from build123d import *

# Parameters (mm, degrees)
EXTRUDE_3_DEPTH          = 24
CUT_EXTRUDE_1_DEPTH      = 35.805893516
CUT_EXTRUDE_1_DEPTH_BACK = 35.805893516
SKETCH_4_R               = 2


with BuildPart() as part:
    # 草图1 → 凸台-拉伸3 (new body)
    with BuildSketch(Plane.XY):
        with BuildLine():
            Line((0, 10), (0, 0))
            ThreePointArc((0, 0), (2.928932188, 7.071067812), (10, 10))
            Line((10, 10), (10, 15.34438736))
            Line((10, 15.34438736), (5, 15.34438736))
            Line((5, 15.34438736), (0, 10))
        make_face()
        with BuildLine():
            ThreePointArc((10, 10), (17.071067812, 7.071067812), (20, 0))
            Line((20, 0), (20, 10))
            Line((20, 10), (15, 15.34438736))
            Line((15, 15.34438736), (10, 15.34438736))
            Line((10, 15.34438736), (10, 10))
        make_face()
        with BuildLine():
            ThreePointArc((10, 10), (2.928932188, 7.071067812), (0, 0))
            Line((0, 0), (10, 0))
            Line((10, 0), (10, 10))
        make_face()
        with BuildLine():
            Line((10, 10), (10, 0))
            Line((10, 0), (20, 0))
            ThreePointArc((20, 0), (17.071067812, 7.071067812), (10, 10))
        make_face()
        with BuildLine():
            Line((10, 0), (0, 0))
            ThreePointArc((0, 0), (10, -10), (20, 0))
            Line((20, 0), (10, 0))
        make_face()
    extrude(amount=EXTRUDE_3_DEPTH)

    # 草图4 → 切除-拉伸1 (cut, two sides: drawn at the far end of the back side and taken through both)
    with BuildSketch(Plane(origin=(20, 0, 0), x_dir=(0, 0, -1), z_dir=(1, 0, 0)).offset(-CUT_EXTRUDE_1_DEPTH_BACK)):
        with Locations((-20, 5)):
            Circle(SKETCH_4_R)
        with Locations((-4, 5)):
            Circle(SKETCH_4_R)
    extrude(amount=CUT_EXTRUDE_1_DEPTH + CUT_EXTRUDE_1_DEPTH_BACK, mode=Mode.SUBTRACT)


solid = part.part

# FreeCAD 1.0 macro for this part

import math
import FreeCAD as App
import Part
import Sketcher
Q = App.Units.Quantity

doc = App.newDocument("Part")
body = doc.addObject("PartDesign::Body", "Body")

sketch1 = body.newObject("Sketcher::SketchObject", "Sketch")
sketch1.AttachmentSupport = (doc.getObject("XY_Plane"), [""])
sketch1.MapMode = "FlatFace"
sketch1.addGeometry([
    Part.LineSegment(App.Vector(15, 15, 0), App.Vector(5, 15, 0)),
    Part.LineSegment(App.Vector(5, 15, 0), App.Vector(0, 10, 0)),
    Part.LineSegment(App.Vector(0, 10, 0), App.Vector(0, 0, 0)),
    Part.ArcOfCircle(Part.Circle(App.Vector(10, 0, 0), App.Vector(0, 0, 1), 10), math.radians(180), math.radians(360)),
    Part.LineSegment(App.Vector(20, 0, 0), App.Vector(20, 10, 0)),
    Part.LineSegment(App.Vector(20, 10, 0), App.Vector(15, 15, 0)),
], False)
sketch1.addConstraint([
    Sketcher.Constraint("Coincident", 0, 2, 1, 1),
    Sketcher.Constraint("Coincident", 1, 2, 2, 1),
    Sketcher.Constraint("Tangent", 2, 2, 3, 1),
    Sketcher.Constraint("Tangent", 3, 2, 4, 1),
    Sketcher.Constraint("Coincident", 4, 2, 5, 1),
    Sketcher.Constraint("Coincident", 5, 2, 0, 1),
    Sketcher.Constraint("Horizontal", 0),
    Sketcher.Constraint("Vertical", 2),
    Sketcher.Constraint("Vertical", 4),
    Sketcher.Constraint("Coincident", 2, 2, -1, 1),
    Sketcher.Constraint("Horizontal", 1, 2, 4, 2),
    Sketcher.Constraint("Equal", 0, 2),
    Sketcher.Constraint("Equal", 1, 5),
    Sketcher.Constraint("Radius", 3, Q("10 mm")),
    Sketcher.Constraint("DistanceX", 0, 2, 0, 1, Q("10 mm")),
    Sketcher.Constraint("Distance", 1, Q("7.318639 mm")),
])
pad1 = body.newObject("PartDesign::Pad", "Pad")
pad1.Profile = sketch1
pad1.Length = 24

sketch2 = body.newObject("Sketcher::SketchObject", "Sketch001")
sketch2.AttachmentSupport = (doc.getObject("YZ_Plane"), [""])
sketch2.MapMode = "FlatFace"
sketch2.AttachmentOffset = App.Placement(App.Vector(0, 0, 20), App.Rotation())
sketch2.addGeometry([
    Part.Circle(App.Vector(5, 20, 0), App.Vector(0, 0, 1), 2),
    Part.Circle(App.Vector(5, 4, 0), App.Vector(0, 0, 1), 2),
], False)
sketch2.addConstraint([
    Sketcher.Constraint("Equal", 0, 1),
    Sketcher.Constraint("Vertical", 0, 3, 1, 3),
    Sketcher.Constraint("Diameter", 0, Q("4 mm")),
    Sketcher.Constraint("DistanceX", -1, 1, 0, 3, Q("5 mm")),
    Sketcher.Constraint("DistanceY", -1, 1, 0, 3, Q("20 mm")),
    Sketcher.Constraint("DistanceY", -1, 1, 1, 3, Q("4 mm")),
])
pocket1 = body.newObject("PartDesign::Pocket", "Pocket")
pocket1.Profile = sketch2
pocket1.Type = "ThroughAll"
pocket1.Midplane = True

doc.recompute()
